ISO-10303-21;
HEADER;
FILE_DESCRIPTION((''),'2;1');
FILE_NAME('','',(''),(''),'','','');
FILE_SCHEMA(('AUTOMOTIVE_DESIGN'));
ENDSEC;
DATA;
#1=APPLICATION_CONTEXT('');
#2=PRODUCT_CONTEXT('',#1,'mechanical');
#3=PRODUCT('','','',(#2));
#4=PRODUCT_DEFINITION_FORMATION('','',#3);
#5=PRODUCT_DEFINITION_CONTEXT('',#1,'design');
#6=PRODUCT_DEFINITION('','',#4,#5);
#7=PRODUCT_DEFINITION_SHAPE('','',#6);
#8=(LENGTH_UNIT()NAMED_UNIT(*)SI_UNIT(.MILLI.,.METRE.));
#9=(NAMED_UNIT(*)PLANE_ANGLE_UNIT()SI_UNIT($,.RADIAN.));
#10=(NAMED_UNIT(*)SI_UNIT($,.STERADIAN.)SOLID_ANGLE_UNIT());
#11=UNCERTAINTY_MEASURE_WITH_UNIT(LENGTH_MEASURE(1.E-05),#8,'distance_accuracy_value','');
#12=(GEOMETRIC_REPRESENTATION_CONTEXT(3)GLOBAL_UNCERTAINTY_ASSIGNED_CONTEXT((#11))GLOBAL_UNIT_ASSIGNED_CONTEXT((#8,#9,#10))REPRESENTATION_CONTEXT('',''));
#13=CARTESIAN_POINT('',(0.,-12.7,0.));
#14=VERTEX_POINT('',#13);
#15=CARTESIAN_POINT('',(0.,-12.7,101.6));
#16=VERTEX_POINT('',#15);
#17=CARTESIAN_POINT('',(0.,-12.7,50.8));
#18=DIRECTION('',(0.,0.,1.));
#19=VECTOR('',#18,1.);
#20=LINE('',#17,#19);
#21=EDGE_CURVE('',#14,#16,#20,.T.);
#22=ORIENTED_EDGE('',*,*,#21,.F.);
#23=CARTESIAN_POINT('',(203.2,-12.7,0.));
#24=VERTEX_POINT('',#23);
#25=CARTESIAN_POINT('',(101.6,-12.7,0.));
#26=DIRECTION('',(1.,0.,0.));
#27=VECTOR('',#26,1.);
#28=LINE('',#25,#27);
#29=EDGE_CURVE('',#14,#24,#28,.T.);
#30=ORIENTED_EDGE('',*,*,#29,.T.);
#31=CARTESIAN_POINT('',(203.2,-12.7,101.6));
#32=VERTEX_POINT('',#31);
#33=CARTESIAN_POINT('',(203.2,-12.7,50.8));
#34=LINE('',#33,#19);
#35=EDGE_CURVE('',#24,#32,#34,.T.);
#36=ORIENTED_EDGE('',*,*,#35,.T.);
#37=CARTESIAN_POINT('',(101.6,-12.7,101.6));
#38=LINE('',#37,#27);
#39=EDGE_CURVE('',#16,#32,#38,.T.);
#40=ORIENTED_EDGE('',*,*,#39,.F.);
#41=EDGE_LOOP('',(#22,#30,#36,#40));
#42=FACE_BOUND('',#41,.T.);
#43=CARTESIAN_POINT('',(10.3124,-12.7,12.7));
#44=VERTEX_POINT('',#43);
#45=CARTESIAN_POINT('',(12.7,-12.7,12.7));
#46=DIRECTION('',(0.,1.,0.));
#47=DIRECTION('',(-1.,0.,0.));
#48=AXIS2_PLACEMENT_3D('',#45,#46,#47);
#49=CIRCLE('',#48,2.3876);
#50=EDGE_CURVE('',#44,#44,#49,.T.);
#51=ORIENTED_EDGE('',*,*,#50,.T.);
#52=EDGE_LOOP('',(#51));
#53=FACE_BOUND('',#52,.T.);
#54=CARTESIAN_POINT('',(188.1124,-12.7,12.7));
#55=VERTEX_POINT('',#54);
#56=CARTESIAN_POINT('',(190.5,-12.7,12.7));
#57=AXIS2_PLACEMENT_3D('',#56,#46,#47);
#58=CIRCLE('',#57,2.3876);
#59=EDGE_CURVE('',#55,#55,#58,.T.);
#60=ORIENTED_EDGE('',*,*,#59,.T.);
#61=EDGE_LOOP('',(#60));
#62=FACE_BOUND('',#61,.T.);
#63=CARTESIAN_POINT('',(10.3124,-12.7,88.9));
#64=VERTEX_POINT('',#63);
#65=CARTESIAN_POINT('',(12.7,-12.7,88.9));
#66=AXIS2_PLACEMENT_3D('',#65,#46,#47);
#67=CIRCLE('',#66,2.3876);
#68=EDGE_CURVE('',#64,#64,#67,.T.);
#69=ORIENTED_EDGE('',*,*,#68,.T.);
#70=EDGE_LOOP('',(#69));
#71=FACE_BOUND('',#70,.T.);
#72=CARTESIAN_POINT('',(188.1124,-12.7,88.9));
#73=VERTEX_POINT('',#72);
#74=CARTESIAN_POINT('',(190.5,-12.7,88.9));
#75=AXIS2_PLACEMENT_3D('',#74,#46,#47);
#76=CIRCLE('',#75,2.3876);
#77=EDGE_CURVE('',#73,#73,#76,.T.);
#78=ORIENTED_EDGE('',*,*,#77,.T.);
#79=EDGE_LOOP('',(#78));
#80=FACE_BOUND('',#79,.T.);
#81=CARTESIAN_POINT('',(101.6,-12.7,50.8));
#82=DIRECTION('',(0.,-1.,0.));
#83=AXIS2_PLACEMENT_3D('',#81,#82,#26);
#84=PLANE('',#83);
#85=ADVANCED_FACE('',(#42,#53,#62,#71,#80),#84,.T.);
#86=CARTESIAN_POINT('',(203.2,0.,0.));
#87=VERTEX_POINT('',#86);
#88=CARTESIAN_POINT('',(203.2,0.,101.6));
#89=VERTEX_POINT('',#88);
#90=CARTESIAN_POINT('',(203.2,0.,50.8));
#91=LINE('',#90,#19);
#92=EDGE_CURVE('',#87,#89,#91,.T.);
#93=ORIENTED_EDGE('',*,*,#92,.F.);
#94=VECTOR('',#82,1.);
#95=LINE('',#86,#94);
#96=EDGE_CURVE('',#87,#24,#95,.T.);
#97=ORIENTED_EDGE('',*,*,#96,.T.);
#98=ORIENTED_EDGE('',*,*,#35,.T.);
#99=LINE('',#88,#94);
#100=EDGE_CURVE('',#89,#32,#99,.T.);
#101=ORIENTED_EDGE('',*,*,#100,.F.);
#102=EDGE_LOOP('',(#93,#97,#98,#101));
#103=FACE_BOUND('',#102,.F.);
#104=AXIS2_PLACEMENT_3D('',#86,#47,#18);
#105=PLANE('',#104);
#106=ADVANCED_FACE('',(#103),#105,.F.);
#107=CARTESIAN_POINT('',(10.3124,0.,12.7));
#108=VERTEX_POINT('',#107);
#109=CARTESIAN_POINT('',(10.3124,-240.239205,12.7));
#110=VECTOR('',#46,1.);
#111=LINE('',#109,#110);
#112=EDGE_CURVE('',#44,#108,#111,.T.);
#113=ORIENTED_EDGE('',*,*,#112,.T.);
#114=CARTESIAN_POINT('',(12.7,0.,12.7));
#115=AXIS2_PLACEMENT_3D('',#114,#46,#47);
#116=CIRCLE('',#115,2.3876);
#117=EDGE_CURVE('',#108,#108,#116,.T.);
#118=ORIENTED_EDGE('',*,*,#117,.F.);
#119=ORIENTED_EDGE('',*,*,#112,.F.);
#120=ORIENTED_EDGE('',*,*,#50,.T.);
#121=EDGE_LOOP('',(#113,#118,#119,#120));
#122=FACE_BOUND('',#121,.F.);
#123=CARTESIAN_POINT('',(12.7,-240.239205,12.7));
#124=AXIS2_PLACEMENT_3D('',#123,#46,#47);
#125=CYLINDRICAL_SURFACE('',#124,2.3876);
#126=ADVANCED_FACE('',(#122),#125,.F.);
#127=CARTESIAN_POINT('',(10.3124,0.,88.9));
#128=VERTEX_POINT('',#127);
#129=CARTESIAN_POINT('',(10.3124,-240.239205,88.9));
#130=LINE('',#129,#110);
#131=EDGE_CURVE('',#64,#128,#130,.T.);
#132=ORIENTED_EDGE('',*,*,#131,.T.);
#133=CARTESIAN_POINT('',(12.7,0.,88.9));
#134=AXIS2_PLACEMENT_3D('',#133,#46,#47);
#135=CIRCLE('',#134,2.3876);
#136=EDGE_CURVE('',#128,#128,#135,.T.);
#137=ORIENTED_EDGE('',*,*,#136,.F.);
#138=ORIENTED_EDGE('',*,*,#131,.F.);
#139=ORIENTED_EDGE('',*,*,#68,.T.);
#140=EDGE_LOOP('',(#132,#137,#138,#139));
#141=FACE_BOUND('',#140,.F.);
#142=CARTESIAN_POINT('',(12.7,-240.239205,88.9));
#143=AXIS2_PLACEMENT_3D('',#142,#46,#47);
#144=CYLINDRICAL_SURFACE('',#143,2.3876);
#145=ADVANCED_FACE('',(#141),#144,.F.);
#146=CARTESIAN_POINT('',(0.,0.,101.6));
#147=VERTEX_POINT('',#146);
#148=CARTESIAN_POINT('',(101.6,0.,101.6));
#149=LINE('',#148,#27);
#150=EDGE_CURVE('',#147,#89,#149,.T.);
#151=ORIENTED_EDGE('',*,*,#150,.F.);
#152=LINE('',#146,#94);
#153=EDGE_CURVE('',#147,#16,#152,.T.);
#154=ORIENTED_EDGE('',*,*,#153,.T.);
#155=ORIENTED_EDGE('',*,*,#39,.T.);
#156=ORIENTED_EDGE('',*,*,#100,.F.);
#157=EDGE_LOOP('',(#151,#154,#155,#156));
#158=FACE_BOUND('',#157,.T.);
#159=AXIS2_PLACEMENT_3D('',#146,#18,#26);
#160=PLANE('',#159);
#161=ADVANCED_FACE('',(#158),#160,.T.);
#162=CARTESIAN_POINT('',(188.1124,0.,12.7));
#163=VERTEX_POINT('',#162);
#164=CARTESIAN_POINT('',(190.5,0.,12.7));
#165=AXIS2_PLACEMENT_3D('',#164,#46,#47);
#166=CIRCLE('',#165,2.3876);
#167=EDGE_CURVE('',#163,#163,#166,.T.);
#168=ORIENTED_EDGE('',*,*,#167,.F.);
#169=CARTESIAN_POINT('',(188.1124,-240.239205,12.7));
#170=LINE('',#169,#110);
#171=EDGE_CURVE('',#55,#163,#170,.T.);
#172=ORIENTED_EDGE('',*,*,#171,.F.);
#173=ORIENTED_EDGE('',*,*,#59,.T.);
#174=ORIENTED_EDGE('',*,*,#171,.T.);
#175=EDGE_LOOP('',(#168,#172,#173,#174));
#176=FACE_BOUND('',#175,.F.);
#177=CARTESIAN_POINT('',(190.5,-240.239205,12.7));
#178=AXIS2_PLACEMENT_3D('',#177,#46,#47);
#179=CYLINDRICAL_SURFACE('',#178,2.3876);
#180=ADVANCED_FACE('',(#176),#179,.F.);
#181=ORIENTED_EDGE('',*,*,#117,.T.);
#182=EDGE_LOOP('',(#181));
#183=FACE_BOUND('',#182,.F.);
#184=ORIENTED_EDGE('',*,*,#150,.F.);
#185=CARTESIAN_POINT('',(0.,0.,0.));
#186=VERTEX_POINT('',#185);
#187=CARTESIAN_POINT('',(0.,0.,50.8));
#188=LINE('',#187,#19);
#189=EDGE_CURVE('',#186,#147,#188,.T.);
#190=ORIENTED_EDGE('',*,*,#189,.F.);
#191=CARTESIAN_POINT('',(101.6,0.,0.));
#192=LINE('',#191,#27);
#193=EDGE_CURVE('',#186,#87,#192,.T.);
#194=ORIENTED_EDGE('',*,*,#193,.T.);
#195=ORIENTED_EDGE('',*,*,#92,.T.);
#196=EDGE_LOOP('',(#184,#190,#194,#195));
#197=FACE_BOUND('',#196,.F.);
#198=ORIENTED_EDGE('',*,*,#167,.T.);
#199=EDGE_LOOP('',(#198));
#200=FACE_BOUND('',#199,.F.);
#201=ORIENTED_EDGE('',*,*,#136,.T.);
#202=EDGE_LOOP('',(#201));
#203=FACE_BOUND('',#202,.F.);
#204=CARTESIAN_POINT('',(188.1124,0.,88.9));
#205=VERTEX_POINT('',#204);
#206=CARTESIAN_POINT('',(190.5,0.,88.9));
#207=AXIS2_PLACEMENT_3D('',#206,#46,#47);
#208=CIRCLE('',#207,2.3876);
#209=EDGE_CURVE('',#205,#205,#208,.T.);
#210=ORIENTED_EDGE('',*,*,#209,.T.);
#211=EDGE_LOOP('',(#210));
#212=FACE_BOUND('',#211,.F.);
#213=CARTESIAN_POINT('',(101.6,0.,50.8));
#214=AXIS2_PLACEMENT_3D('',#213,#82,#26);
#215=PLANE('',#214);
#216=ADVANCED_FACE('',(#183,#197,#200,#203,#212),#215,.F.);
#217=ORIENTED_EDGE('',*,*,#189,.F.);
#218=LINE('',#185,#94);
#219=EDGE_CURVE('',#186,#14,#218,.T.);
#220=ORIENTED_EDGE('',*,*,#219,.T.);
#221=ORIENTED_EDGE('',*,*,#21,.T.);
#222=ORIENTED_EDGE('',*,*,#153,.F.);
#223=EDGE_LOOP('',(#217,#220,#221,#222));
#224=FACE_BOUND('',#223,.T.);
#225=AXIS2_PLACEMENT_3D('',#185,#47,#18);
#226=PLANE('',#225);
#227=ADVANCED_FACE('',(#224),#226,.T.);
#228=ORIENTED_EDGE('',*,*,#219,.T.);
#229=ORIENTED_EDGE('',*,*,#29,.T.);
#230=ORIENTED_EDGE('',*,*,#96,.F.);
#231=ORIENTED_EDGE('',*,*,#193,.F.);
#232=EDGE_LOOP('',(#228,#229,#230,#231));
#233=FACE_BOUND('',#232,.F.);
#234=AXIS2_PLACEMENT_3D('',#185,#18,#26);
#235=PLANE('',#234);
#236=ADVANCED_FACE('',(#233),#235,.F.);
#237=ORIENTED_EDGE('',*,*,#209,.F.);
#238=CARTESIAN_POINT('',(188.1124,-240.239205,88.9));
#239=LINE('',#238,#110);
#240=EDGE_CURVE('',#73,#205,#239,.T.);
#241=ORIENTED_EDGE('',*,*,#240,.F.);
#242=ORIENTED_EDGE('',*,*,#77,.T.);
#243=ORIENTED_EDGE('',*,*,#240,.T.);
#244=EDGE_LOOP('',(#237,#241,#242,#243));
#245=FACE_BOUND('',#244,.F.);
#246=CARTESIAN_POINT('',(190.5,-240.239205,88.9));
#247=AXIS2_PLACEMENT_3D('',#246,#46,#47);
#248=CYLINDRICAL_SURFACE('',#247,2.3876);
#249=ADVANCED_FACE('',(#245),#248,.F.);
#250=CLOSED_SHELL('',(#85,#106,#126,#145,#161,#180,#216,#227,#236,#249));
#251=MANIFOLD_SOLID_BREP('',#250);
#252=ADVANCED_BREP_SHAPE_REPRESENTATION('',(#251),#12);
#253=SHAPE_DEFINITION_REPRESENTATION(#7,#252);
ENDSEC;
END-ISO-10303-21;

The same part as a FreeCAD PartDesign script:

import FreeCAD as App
import Part
import Sketcher
Q = App.Units.Quantity

doc = App.newDocument("Part")
body = doc.addObject("PartDesign::Body", "Body")

sketch1 = body.newObject("Sketcher::SketchObject", "Sketch")
sketch1.AttachmentSupport = (doc.getObject("XZ_Plane"), [""])
sketch1.MapMode = "FlatFace"
sketch1.addGeometry([
    Part.LineSegment(App.Vector(0, 101.6, 0), App.Vector(0, 0, 0)),
    Part.LineSegment(App.Vector(0, 0, 0), App.Vector(203.2, 0, 0)),
    Part.LineSegment(App.Vector(203.2, 0, 0), App.Vector(203.2, 101.6, 0)),
    Part.LineSegment(App.Vector(203.2, 101.6, 0), App.Vector(0, 101.6, 0)),
], False)
sketch1.addConstraint([
    Sketcher.Constraint("Coincident", 0, 2, 1, 1),
    Sketcher.Constraint("Coincident", 1, 2, 2, 1),
    Sketcher.Constraint("Coincident", 2, 2, 3, 1),
    Sketcher.Constraint("Coincident", 3, 2, 0, 1),
    Sketcher.Constraint("Vertical", 0),
    Sketcher.Constraint("Horizontal", 1),
    Sketcher.Constraint("Vertical", 2),
    Sketcher.Constraint("Horizontal", 3),
    Sketcher.Constraint("Coincident", 0, 2, -1, 1),
    Sketcher.Constraint("DistanceX", 1, 1, 1, 2, Q("8 in")),
    Sketcher.Constraint("DistanceY", 0, 2, 0, 1, Q("4 in")),
])
pad1 = body.newObject("PartDesign::Pad", "Pad")
pad1.Profile = sketch1
pad1.Length = Q("0.5 in")

sketch2 = body.newObject("Sketcher::SketchObject", "Sketch001")
sketch2.AttachmentSupport = (doc.getObject("XZ_Plane"), [""])
sketch2.MapMode = "FlatFace"
sketch2.AttachmentOffset = App.Placement(App.Vector(0, 0, 0.5 * 25.4), App.Rotation())
sketch2.addGeometry([
    Part.Circle(App.Vector(12.7, 12.7, 0), App.Vector(0, 0, 1), 2.3876),
    Part.Circle(App.Vector(190.5, 12.7, 0), App.Vector(0, 0, 1), 2.3876),
    Part.Circle(App.Vector(190.5, 88.9, 0), App.Vector(0, 0, 1), 2.3876),
    Part.Circle(App.Vector(12.7, 88.9, 0), App.Vector(0, 0, 1), 2.3876),
], False)
sketch2.addConstraint([
    Sketcher.Constraint("Equal", 0, 1),
    Sketcher.Constraint("Equal", 1, 2),
    Sketcher.Constraint("Equal", 2, 3),
    Sketcher.Constraint("Horizontal", 0, 3, 1, 3),
    Sketcher.Constraint("Horizontal", 2, 3, 3, 3),
    Sketcher.Constraint("Vertical", 1, 3, 2, 3),
    Sketcher.Constraint("Vertical", 0, 3, 3, 3),
    Sketcher.Constraint("Diameter", 0, Q("0.188 in")),
    Sketcher.Constraint("DistanceX", 0, 3, 1, 3, Q("7 in")),
    Sketcher.Constraint("DistanceY", 1, 3, 2, 3, Q("3 in")),
    Sketcher.Constraint("DistanceX", -1, 1, 0, 3, Q("0.5 in")),
    Sketcher.Constraint("DistanceY", -1, 1, 0, 3, Q("0.5 in")),
])
doc.recompute()
hole = body.newObject("PartDesign::Hole", "Hole")
hole.Profile = sketch2
hole.ThreadType = "None"
hole.Diameter = Q("0.188 in")
hole.DepthType = "ThroughAll"

doc.recompute()
